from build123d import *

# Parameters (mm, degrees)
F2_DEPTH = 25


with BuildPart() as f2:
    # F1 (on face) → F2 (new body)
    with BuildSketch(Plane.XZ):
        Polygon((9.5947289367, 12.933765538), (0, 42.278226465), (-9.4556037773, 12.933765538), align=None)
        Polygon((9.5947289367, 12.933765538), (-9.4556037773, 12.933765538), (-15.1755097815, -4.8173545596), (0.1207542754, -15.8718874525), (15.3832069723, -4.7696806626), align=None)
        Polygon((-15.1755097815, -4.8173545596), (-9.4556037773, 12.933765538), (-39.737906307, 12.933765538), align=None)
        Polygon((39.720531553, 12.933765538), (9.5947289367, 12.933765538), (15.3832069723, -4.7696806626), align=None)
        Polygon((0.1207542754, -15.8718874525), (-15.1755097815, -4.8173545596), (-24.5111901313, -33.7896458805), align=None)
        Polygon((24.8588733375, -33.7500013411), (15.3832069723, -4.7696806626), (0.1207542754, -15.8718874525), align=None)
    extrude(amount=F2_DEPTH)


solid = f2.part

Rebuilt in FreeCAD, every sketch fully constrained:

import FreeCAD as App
import Part
import Sketcher


def add_polygon(sketch, points):
    """Adds a closed chain of lines whose ends are joined by coincident constraints."""
    first, n = sketch.GeometryCount, len(points)
    for a, b in zip(points, points[1:] + points[:1]):
        sketch.addGeometry(Part.LineSegment(App.Vector(*a, 0), App.Vector(*b, 0)), False)
    for i in range(n):
        sketch.addConstraint(Sketcher.Constraint("Coincident", first + i, 2, first + (i + 1) % n, 1))

doc = App.newDocument("Part")
body = doc.addObject("PartDesign::Body", "Body")

# Sketch on XZ plane
sketch1 = doc.addObject("Sketcher::SketchObject", "Sketch")
body.addObject(sketch1)
sketch1.AttachmentSupport = (doc.XZ_Plane, [""])
sketch1.MapMode = "FlatFace"
add_polygon(sketch1, [(10, 13), (0, 42), (-9, 13), (-40, 13), (-15, -5), (-25, -34), (0, -16), (25, -34), (15, -5), (40, 13)])  # lines 0-9
sketch1.addConstraint([
    Sketcher.Constraint("Horizontal", 2),
    Sketcher.Constraint("Horizontal", 9),
    Sketcher.Constraint("PointOnObject", 0, 2, -2),
    Sketcher.Constraint("Parallel", 1, 4),
    Sketcher.Constraint("Parallel", 3, 6),
    Sketcher.Constraint("Parallel", 0, 7),
    Sketcher.Constraint("Parallel", 5, 8),
    Sketcher.Constraint("Horizontal", 2, 2, 8, 2),
    Sketcher.Constraint("DistanceY", 6, 2, -1, 1, 33.750001),
    Sketcher.Constraint("Distance", 0, 30.873228),
    Sketcher.Constraint("Distance", 3, 30.305339),
    Sketcher.Constraint("Distance", 4, 30.439261),
    Sketcher.Constraint("Distance", 5, 30.459461),
    Sketcher.Constraint("Distance", 8, 30.095139),
    Sketcher.Constraint("DistanceX", 2, 2, 2, 1, 30.282303),
    Sketcher.Constraint("DistanceX", 9, 2, 9, 1, 30.125803),
    Sketcher.Constraint("DistanceX", 3, 2, -1, 1, 15.17551),
    Sketcher.Constraint("DistanceX", 4, 2, -1, 1, 24.51119),
    Sketcher.Constraint("DistanceY", 7, 2, -1, 1, 4.769681),
    Sketcher.Constraint("DistanceX", -1, 1, 8, 2, 39.720532),
])
pad1 = doc.addObject("PartDesign::Pad", "Pad")
body.addObject(pad1)
pad1.Profile = sketch1
pad1.Length = 25

doc.recompute()
